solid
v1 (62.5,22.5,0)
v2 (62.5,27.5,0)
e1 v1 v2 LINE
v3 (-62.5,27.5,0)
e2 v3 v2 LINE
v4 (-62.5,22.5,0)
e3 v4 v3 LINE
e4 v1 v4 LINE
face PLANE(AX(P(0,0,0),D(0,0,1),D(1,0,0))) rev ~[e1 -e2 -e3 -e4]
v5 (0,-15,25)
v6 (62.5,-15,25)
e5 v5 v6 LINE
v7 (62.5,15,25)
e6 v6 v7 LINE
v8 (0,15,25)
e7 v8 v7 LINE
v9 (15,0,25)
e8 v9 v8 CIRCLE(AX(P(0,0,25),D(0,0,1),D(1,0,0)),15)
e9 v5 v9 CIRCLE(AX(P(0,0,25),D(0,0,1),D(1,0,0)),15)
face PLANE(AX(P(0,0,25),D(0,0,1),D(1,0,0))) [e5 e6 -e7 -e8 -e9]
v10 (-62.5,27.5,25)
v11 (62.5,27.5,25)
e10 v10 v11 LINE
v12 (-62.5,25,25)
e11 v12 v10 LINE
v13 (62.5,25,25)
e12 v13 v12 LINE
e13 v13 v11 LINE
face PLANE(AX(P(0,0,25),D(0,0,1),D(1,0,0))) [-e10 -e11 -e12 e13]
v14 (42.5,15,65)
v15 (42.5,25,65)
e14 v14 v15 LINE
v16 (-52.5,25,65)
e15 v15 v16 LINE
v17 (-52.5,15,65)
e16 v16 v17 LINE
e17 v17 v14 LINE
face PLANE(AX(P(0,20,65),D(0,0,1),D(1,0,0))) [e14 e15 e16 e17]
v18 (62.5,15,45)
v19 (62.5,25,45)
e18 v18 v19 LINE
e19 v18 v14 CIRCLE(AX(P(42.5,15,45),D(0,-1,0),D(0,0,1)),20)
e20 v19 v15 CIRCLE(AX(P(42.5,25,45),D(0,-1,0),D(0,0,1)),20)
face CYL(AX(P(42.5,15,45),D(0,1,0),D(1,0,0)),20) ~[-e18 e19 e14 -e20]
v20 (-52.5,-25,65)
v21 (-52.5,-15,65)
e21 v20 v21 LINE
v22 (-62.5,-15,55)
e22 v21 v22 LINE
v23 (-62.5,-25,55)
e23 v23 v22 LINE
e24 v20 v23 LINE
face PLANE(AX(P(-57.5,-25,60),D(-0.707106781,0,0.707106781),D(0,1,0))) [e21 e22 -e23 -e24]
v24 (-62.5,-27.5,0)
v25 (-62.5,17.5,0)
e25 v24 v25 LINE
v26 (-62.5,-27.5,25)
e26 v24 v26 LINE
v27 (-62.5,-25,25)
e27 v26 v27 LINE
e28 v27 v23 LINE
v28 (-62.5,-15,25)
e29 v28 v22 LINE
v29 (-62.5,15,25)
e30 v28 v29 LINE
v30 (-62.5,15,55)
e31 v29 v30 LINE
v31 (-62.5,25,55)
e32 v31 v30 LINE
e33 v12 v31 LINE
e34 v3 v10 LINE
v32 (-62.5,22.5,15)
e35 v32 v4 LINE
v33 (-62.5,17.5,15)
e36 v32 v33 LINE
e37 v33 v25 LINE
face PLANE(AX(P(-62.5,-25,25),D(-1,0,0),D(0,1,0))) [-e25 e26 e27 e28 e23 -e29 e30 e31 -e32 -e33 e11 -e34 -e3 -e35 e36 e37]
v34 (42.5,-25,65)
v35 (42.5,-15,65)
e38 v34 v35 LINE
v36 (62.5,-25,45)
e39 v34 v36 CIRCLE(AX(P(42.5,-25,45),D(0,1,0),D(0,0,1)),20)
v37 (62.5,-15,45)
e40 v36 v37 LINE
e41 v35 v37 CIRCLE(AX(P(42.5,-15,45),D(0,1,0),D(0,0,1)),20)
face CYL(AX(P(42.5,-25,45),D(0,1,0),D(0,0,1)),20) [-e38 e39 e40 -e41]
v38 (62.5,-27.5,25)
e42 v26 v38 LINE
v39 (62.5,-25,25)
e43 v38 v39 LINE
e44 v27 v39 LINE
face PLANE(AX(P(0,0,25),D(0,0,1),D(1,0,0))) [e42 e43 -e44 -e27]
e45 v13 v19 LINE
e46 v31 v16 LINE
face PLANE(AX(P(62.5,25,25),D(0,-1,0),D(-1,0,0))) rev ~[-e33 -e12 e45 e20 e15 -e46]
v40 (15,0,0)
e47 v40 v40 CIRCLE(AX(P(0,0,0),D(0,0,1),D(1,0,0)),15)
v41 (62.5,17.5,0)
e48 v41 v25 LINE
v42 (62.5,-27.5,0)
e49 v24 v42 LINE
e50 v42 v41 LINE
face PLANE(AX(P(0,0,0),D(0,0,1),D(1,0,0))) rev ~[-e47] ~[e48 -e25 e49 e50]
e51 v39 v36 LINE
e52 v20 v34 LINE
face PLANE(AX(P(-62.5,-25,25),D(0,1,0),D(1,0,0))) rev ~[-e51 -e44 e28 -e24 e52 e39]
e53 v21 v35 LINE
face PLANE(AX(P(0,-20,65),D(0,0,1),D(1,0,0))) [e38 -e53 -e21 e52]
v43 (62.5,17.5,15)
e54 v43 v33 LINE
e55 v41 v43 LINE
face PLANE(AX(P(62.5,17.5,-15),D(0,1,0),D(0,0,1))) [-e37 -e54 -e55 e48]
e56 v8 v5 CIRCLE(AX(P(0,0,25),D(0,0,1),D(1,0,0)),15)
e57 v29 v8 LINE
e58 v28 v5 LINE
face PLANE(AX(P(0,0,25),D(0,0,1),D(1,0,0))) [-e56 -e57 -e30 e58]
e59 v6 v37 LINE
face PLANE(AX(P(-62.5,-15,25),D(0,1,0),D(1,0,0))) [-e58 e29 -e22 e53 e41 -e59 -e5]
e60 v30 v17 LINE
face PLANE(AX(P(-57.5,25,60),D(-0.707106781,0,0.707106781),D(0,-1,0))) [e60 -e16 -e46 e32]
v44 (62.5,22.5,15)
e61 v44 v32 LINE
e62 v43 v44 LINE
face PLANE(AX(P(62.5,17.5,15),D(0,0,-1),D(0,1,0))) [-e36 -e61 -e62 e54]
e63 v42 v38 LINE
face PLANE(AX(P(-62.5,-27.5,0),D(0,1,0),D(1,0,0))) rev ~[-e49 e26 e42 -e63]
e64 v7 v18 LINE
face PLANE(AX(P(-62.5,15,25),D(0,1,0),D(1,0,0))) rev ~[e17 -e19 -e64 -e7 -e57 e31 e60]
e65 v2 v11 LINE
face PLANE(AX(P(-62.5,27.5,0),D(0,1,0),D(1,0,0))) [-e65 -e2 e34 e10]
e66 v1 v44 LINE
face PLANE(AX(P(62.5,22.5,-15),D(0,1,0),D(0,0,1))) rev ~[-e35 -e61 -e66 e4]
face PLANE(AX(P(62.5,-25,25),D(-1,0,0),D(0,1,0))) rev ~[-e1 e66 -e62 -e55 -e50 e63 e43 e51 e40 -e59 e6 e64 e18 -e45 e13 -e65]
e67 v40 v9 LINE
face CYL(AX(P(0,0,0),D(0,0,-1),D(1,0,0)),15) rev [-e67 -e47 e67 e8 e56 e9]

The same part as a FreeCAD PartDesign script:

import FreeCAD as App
import Part
import Sketcher


def edges_at(feature, points):
    """Names of the edges that pass closest to the given points."""
    edges = feature.Shape.Edges
    near = lambda p: min(range(len(edges)), key=lambda i: edges[i].distToShape(Part.Vertex(*p))[0])
    return sorted({f"Edge{near(p) + 1}" for p in points})

doc = App.newDocument("Part")
body = doc.addObject("PartDesign::Body", "Body")

sketch1 = body.newObject("Sketcher::SketchObject", "Sketch")
sketch1.AttachmentSupport = (doc.getObject("XY_Plane"), [""])
sketch1.MapMode = "FlatFace"
sketch1.addGeometry([
    Part.LineSegment(App.Vector(-62, 28, 0), App.Vector(-62, -28, 0)),
    Part.LineSegment(App.Vector(-62, -28, 0), App.Vector(62, -28, 0)),
    Part.LineSegment(App.Vector(62, -28, 0), App.Vector(62, 28, 0)),
    Part.LineSegment(App.Vector(62, 28, 0), App.Vector(-62, 28, 0)),
    Part.Circle(App.Vector(0, 0, 0), App.Vector(0, 0, 1), 15),
], False)
sketch1.addConstraint([
    Sketcher.Constraint("Coincident", 0, 2, 1, 1),
    Sketcher.Constraint("Coincident", 1, 2, 2, 1),
    Sketcher.Constraint("Coincident", 2, 2, 3, 1),
    Sketcher.Constraint("Coincident", 3, 2, 0, 1),
    Sketcher.Constraint("Vertical", 0),
    Sketcher.Constraint("Horizontal", 1),
    Sketcher.Constraint("Vertical", 2),
    Sketcher.Constraint("Horizontal", 3),
    Sketcher.Constraint("Coincident", 4, 3, -1, 1),
    Sketcher.Constraint("Symmetric", 0, 2, 2, 2, -1, 1),
    Sketcher.Constraint("Diameter", 4, 30.0),
    Sketcher.Constraint("DistanceX", 1, 1, 1, 2, 125.0),
    Sketcher.Constraint("DistanceY", 0, 2, 0, 1, 55.0),
])
pad1 = body.newObject("PartDesign::Pad", "Pad")
pad1.Profile = sketch1
pad1.Length = 25

sketch2 = body.newObject("Sketcher::SketchObject", "Sketch001")
sketch2.AttachmentSupport = (doc.getObject("XY_Plane"), [""])
sketch2.MapMode = "FlatFace"
sketch2.AttachmentOffset = App.Placement(App.Vector(0, 0, 25), App.Rotation())
sketch2.addGeometry([
    Part.LineSegment(App.Vector(-62, -15, 0), App.Vector(-62, -25, 0)),
    Part.LineSegment(App.Vector(-62, -25, 0), App.Vector(62, -25, 0)),
    Part.LineSegment(App.Vector(62, -25, 0), App.Vector(62, -15, 0)),
    Part.LineSegment(App.Vector(62, -15, 0), App.Vector(-62, -15, 0)),
    Part.LineSegment(App.Vector(-62, 15, 0), App.Vector(62, 15, 0)),
    Part.LineSegment(App.Vector(62, 15, 0), App.Vector(62, 25, 0)),
    Part.LineSegment(App.Vector(62, 25, 0), App.Vector(-62, 25, 0)),
    Part.LineSegment(App.Vector(-62, 25, 0), App.Vector(-62, 15, 0)),
], False)
sketch2.addConstraint([
    Sketcher.Constraint("Coincident", 0, 2, 1, 1),
    Sketcher.Constraint("Coincident", 1, 2, 2, 1),
    Sketcher.Constraint("Coincident", 2, 2, 3, 1),
    Sketcher.Constraint("Coincident", 3, 2, 0, 1),
    Sketcher.Constraint("Coincident", 4, 2, 5, 1),
    Sketcher.Constraint("Coincident", 5, 2, 6, 1),
    Sketcher.Constraint("Coincident", 6, 2, 7, 1),
    Sketcher.Constraint("Coincident", 7, 2, 4, 1),
    Sketcher.Constraint("Vertical", 0),
    Sketcher.Constraint("Horizontal", 1),
    Sketcher.Constraint("Vertical", 2),
    Sketcher.Constraint("Horizontal", 3),
    Sketcher.Constraint("Horizontal", 4),
    Sketcher.Constraint("Vertical", 5),
    Sketcher.Constraint("Horizontal", 6),
    Sketcher.Constraint("Vertical", 7),
    Sketcher.Constraint("Symmetric", 3, 2, 4, 2, -1, 1),
    Sketcher.Constraint("Symmetric", 1, 2, 6, 2, -1, 1),
    Sketcher.Constraint("Vertical", 2, 2, 4, 2),
    Sketcher.Constraint("DistanceX", 1, 1, 1, 2, 125.0),
    Sketcher.Constraint("DistanceY", 0, 2, 0, 1, 10.0),
    Sketcher.Constraint("DistanceY", 0, 2, -1, 1, 25.0),
])
pad2 = body.newObject("PartDesign::Pad", "Pad001")
pad2.Profile = sketch2
pad2.Length = 40
doc.recompute()

fillet = body.newObject("PartDesign::Fillet", "Fillet")
fillet.Base = (pad2, edges_at(pad2, [(62.5, -20, 65), (62.5, 20, 65)]))
fillet.Radius = 20
doc.recompute()

chamfer = body.newObject("PartDesign::Chamfer", "Chamfer")
chamfer.Base = (fillet, edges_at(fillet, [(-62.5, 20, 65), (-62.5, -20, 65)]))
chamfer.Size = 10

sketch3 = body.newObject("Sketcher::SketchObject", "Sketch002")
sketch3.AttachmentSupport = (doc.getObject("YZ_Plane"), [""])
sketch3.MapMode = "FlatFace"
sketch3.AttachmentOffset = App.Placement(App.Vector(0, 0, 62.5), App.Rotation())
sketch3.addGeometry([
    Part.LineSegment(App.Vector(18, 15, 0), App.Vector(18, -15, 0)),
    Part.LineSegment(App.Vector(18, -15, 0), App.Vector(22, -15, 0)),
    Part.LineSegment(App.Vector(22, -15, 0), App.Vector(22, 15, 0)),
    Part.LineSegment(App.Vector(22, 15, 0), App.Vector(18, 15, 0)),
], False)
sketch3.addConstraint([
    Sketcher.Constraint("Coincident", 0, 2, 1, 1),
    Sketcher.Constraint("Coincident", 1, 2, 2, 1),
    Sketcher.Constraint("Coincident", 2, 2, 3, 1),
    Sketcher.Constraint("Coincident", 3, 2, 0, 1),
    Sketcher.Constraint("Vertical", 0),
    Sketcher.Constraint("Horizontal", 1),
    Sketcher.Constraint("Vertical", 2),
    Sketcher.Constraint("Horizontal", 3),
    Sketcher.Constraint("DistanceX", 1, 1, 1, 2, 5.0),
    Sketcher.Constraint("DistanceY", 0, 2, 0, 1, 30.0),
    Sketcher.Constraint("DistanceY", 0, 2, -1, 1, 15.0),
    Sketcher.Constraint("DistanceX", -1, 1, 0, 2, 17.5),
])
pocket1 = body.newObject("PartDesign::Pocket", "Pocket")
pocket1.Profile = sketch3
pocket1.Type = "ThroughAll"

doc.recompute()
